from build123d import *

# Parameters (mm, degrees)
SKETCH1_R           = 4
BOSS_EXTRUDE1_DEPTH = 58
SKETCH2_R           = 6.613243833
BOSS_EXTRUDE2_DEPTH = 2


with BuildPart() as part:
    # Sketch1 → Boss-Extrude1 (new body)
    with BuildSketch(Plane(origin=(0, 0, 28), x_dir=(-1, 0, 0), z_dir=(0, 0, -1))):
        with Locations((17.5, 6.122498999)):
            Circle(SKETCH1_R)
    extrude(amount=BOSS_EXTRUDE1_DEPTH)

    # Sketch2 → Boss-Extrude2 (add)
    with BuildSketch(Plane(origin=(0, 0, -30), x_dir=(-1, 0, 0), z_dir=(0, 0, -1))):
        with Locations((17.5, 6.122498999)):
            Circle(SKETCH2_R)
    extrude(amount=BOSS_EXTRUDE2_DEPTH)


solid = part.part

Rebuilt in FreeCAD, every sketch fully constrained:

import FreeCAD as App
import Part
import Sketcher
from FreeCAD import Vector
Q = App.Units.Quantity

doc = App.newDocument("Part")
body = doc.addObject("PartDesign::Body", "Body")

sketch1 = body.newObject("Sketcher::SketchObject", "Sketch")
sketch1.AttachmentSupport = (doc.getObject("XY_Plane"), [""])
sketch1.MapMode = "FlatFace"
sketch1.AttachmentOffset = App.Placement(Vector(0, 0, 28), App.Rotation())
sketch1.addGeometry(Part.Circle(Vector(-17.5, 6.1, 0), Vector(0, 0, 1), 4), False)
sketch1.addConstraint([
    Sketcher.Constraint("Diameter", 0, Q("8 mm")),
    Sketcher.Constraint("DistanceX", 0, 3, -1, 1, Q("17.5 mm")),
    Sketcher.Constraint("DistanceY", -1, 1, 0, 3, Q("6.122499 mm")),
])
pad1 = body.newObject("PartDesign::Pad", "Pad")
pad1.Profile = sketch1
pad1.Length = 58
pad1.Reversed = True

sketch2 = body.newObject("Sketcher::SketchObject", "Sketch001")
sketch2.AttachmentSupport = (doc.getObject("XY_Plane"), [""])
sketch2.MapMode = "FlatFace"
sketch2.AttachmentOffset = App.Placement(Vector(0, 0, -30), App.Rotation())
sketch2.addGeometry(Part.Circle(Vector(-18, 6, 0), Vector(0, 0, 1), 7), False)
sketch2.addConstraint([
    Sketcher.Constraint("DistanceX", 0, 3, -1, 1, Q("17.5 mm")),
    Sketcher.Constraint("Diameter", 0, Q("13.226488 mm")),
    Sketcher.Constraint("DistanceY", -1, 1, 0, 3, Q("6.122499 mm")),
])
pad2 = body.newObject("PartDesign::Pad", "Pad001")
pad2.Profile = sketch2
pad2.Length = 2
pad2.Reversed = True

doc.recompute()
